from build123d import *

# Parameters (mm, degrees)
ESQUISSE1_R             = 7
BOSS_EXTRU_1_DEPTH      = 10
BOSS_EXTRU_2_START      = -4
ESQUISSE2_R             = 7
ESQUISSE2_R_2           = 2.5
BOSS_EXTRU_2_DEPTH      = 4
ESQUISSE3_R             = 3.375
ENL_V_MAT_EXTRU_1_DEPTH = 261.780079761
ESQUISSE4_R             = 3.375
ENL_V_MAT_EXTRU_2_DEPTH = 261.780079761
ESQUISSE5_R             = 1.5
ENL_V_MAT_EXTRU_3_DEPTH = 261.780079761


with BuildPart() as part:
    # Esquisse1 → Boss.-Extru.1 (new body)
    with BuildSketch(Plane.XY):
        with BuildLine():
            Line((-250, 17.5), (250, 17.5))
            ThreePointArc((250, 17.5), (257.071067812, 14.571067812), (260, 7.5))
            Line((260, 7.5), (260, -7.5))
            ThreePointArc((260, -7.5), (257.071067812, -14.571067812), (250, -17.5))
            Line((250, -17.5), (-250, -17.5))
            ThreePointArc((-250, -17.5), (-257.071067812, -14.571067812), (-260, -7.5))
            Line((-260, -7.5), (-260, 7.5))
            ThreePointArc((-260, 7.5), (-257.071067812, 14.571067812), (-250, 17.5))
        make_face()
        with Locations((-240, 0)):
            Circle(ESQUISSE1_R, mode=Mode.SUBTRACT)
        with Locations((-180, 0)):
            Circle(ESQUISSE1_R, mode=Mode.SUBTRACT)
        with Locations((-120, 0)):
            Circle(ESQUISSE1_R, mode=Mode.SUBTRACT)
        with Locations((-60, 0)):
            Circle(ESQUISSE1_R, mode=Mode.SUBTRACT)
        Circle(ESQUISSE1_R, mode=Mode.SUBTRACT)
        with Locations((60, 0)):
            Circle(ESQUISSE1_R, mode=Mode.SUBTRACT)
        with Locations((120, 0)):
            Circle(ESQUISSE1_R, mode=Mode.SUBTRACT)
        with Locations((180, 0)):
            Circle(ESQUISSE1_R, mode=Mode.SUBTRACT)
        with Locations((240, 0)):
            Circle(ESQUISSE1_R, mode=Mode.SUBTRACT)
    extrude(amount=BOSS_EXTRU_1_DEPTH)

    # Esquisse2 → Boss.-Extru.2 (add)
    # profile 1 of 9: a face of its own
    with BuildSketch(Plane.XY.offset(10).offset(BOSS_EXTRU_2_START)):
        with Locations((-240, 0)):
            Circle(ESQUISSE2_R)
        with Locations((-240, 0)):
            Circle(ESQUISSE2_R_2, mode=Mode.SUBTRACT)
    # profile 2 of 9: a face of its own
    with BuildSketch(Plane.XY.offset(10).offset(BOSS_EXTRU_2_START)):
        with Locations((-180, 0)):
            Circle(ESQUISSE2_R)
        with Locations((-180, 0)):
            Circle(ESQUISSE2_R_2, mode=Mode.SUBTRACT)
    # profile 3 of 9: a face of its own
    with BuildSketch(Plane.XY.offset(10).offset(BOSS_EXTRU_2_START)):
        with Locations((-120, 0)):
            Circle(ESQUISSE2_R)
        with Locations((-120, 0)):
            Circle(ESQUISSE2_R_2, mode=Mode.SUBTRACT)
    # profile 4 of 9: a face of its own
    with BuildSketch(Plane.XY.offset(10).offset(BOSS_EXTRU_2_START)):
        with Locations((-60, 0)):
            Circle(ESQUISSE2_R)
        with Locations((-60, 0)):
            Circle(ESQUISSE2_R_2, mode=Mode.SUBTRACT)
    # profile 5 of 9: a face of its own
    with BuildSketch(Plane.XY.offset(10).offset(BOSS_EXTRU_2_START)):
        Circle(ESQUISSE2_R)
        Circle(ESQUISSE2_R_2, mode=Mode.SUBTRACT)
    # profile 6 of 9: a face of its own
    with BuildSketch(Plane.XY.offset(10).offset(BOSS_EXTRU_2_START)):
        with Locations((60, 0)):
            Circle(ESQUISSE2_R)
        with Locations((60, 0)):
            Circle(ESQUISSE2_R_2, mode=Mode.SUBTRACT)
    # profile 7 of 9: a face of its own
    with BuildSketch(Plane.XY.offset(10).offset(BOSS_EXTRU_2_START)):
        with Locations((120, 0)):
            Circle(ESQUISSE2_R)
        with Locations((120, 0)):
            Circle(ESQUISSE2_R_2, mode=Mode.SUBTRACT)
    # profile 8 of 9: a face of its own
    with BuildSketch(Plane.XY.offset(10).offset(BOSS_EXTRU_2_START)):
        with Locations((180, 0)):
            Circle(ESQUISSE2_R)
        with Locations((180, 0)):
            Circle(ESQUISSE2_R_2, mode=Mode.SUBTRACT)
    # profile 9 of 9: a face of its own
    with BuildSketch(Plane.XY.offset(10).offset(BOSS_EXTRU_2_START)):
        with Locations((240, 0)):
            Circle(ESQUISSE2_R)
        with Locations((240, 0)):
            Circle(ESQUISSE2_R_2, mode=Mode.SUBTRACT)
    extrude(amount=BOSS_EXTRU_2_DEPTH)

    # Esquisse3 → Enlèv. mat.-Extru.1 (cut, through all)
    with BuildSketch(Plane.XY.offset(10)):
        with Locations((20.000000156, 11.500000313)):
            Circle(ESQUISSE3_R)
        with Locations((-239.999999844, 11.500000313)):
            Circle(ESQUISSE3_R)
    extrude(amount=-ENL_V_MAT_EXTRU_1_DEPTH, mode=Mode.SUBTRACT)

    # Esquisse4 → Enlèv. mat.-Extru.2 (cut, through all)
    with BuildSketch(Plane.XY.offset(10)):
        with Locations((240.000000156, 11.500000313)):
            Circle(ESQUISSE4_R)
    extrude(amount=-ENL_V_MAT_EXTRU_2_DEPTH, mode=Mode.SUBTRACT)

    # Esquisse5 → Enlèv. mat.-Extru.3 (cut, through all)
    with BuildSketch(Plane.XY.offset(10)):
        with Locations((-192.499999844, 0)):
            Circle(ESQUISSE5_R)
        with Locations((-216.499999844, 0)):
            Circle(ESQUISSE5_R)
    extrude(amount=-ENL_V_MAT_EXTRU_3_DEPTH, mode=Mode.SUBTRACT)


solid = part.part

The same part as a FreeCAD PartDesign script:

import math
import FreeCAD as App
import Part
import Sketcher

doc = App.newDocument("Part")
body = doc.addObject("PartDesign::Body", "Body")

# Sketch on XY plane
sketch1 = body.newObject("Sketcher::SketchObject", "Sketch")
sketch1.AttachmentSupport = (doc.getObject("XY_Plane"), [""])
sketch1.MapMode = "FlatFace"
sketch1.addGeometry(Part.LineSegment(App.Vector(250, 18, 0), App.Vector(-250, 18, 0)), False)
sketch1.addGeometry(Part.ArcOfCircle(Part.Circle(App.Vector(-250, 8, 0), App.Vector(0, 0, 1), 10), math.radians(90), math.radians(180)), False)
sketch1.addGeometry(Part.LineSegment(App.Vector(-260, 8, 0), App.Vector(-260, -8, 0)), False)
sketch1.addGeometry(Part.ArcOfCircle(Part.Circle(App.Vector(-250, -8, 0), App.Vector(0, 0, 1), 10), math.radians(180), math.radians(270)), False)
sketch1.addGeometry(Part.LineSegment(App.Vector(-250, -18, 0), App.Vector(250, -18, 0)), False)
sketch1.addGeometry(Part.ArcOfCircle(Part.Circle(App.Vector(250, -8, 0), App.Vector(0, 0, 1), 10), math.radians(-90), math.radians(0)), False)
sketch1.addGeometry(Part.LineSegment(App.Vector(260, -8, 0), App.Vector(260, 8, 0)), False)
sketch1.addGeometry(Part.ArcOfCircle(Part.Circle(App.Vector(250, 8, 0), App.Vector(0, 0, 1), 10), math.radians(0), math.radians(90)), False)
sketch1.addGeometry(Part.Circle(App.Vector(240, 0, 0), App.Vector(0, 0, 1), 7), False)
sketch1.addGeometry(Part.Circle(App.Vector(180, 0, 0), App.Vector(0, 0, 1), 7), False)
sketch1.addGeometry(Part.Circle(App.Vector(120, 0, 0), App.Vector(0, 0, 1), 7), False)
sketch1.addGeometry(Part.Circle(App.Vector(60, 0, 0), App.Vector(0, 0, 1), 7), False)
sketch1.addGeometry(Part.Circle(App.Vector(0, 0, 0), App.Vector(0, 0, 1), 7), False)
sketch1.addGeometry(Part.Circle(App.Vector(-60, 0, 0), App.Vector(0, 0, 1), 7), False)
sketch1.addGeometry(Part.Circle(App.Vector(-120, 0, 0), App.Vector(0, 0, 1), 7), False)
sketch1.addGeometry(Part.Circle(App.Vector(-180, 0, 0), App.Vector(0, 0, 1), 7), False)
sketch1.addGeometry(Part.Circle(App.Vector(-240, 0, 0), App.Vector(0, 0, 1), 7), False)
sketch1.addConstraint(Sketcher.Constraint("Tangent", 0, 2, 1, 1))
sketch1.addConstraint(Sketcher.Constraint("Tangent", 1, 2, 2, 1))
sketch1.addConstraint(Sketcher.Constraint("Tangent", 2, 2, 3, 1))
sketch1.addConstraint(Sketcher.Constraint("Tangent", 3, 2, 4, 1))
sketch1.addConstraint(Sketcher.Constraint("Tangent", 4, 2, 5, 1))
sketch1.addConstraint(Sketcher.Constraint("Tangent", 5, 2, 6, 1))
sketch1.addConstraint(Sketcher.Constraint("Tangent", 6, 2, 7, 1))
sketch1.addConstraint(Sketcher.Constraint("Tangent", 7, 2, 0, 1))
sketch1.addConstraint(Sketcher.Constraint("Horizontal", 0))
sketch1.addConstraint(Sketcher.Constraint("Vertical", 2))
sketch1.addConstraint(Sketcher.Constraint("Horizontal", 4))
sketch1.addConstraint(Sketcher.Constraint("Vertical", 6))
sketch1.addConstraint(Sketcher.Constraint("Coincident", 12, 3, -1, 1))
sketch1.addConstraint(Sketcher.Constraint("Equal", 1, 3))
sketch1.addConstraint(Sketcher.Constraint("Equal", 3, 5))
sketch1.addConstraint(Sketcher.Constraint("Equal", 5, 7))
sketch1.addConstraint(Sketcher.Constraint("Equal", 8, 9))
sketch1.addConstraint(Sketcher.Constraint("Equal", 9, 10))
sketch1.addConstraint(Sketcher.Constraint("Equal", 10, 11))
sketch1.addConstraint(Sketcher.Constraint("Equal", 11, 12))
sketch1.addConstraint(Sketcher.Constraint("Equal", 12, 13))
sketch1.addConstraint(Sketcher.Constraint("Equal", 13, 14))
sketch1.addConstraint(Sketcher.Constraint("Equal", 14, 15))
sketch1.addConstraint(Sketcher.Constraint("Equal", 15, 16))
sketch1.addConstraint(Sketcher.Constraint("Symmetric", 1, 3, 5, 3, -1, 1))
sketch1.addConstraint(Sketcher.Constraint("Symmetric", 11, 3, 13, 3, -1, 1))
sketch1.addConstraint(Sketcher.Constraint("Symmetric", 10, 3, 14, 3, -1, 1))
sketch1.addConstraint(Sketcher.Constraint("Symmetric", 9, 3, 15, 3, -1, 1))
sketch1.addConstraint(Sketcher.Constraint("Symmetric", 8, 3, 16, 3, -1, 1))
sketch1.addConstraint(Sketcher.Constraint("PointOnObject", 8, 3, -1))
sketch1.addConstraint(Sketcher.Constraint("PointOnObject", 9, 3, -1))
sketch1.addConstraint(Sketcher.Constraint("PointOnObject", 10, 3, -1))
sketch1.addConstraint(Sketcher.Constraint("PointOnObject", 11, 3, -1))
sketch1.addConstraint(Sketcher.Constraint("Diameter", 8, 14.0))
sketch1.addConstraint(Sketcher.Constraint("Radius", 1, 10.0))
sketch1.addConstraint(Sketcher.Constraint("DistanceX", 0, 2, 0, 1, 500.0))
sketch1.addConstraint(Sketcher.Constraint("DistanceY", 2, 2, 2, 1, 15.0))
sketch1.addConstraint(Sketcher.Constraint("DistanceX", -1, 1, 8, 3, 240.0))
sketch1.addConstraint(Sketcher.Constraint("DistanceX", -1, 1, 9, 3, 180.0))
sketch1.addConstraint(Sketcher.Constraint("DistanceX", -1, 1, 10, 3, 120.0))
sketch1.addConstraint(Sketcher.Constraint("DistanceX", -1, 1, 11, 3, 60.0))
pad1 = body.newObject("PartDesign::Pad", "Pad")
pad1.Profile = sketch1
pad1.Length = 10

# Sketch on XY plane
sketch2 = body.newObject("Sketcher::SketchObject", "Sketch001")
sketch2.AttachmentSupport = (doc.getObject("XY_Plane"), [""])
sketch2.MapMode = "FlatFace"
sketch2.AttachmentOffset = App.Placement(App.Vector(0, 0, 6), App.Rotation())
sketch2.addGeometry(Part.Circle(App.Vector(-240, 0, 0), App.Vector(0, 0, 1), 7), False)
sketch2.addGeometry(Part.Circle(App.Vector(-240, 0, 0), App.Vector(0, 0, 1), 2.5), False)
sketch2.addGeometry(Part.Circle(App.Vector(-180, 0, 0), App.Vector(0, 0, 1), 7), False)
sketch2.addGeometry(Part.Circle(App.Vector(-180, 0, 0), App.Vector(0, 0, 1), 2.5), False)
sketch2.addGeometry(Part.Circle(App.Vector(-120, 0, 0), App.Vector(0, 0, 1), 7), False)
sketch2.addGeometry(Part.Circle(App.Vector(-120, 0, 0), App.Vector(0, 0, 1), 2.5), False)
sketch2.addGeometry(Part.Circle(App.Vector(-60, 0, 0), App.Vector(0, 0, 1), 7), False)
sketch2.addGeometry(Part.Circle(App.Vector(-60, 0, 0), App.Vector(0, 0, 1), 2.5), False)
sketch2.addGeometry(Part.Circle(App.Vector(0, 0, 0), App.Vector(0, 0, 1), 7), False)
sketch2.addGeometry(Part.Circle(App.Vector(0, 0, 0), App.Vector(0, 0, 1), 2.5), False)
sketch2.addGeometry(Part.Circle(App.Vector(60, 0, 0), App.Vector(0, 0, 1), 7), False)
sketch2.addGeometry(Part.Circle(App.Vector(60, 0, 0), App.Vector(0, 0, 1), 2.5), False)
sketch2.addGeometry(Part.Circle(App.Vector(120, 0, 0), App.Vector(0, 0, 1), 7), False)
sketch2.addGeometry(Part.Circle(App.Vector(120, 0, 0), App.Vector(0, 0, 1), 2.5), False)
sketch2.addGeometry(Part.Circle(App.Vector(180, 0, 0), App.Vector(0, 0, 1), 7), False)
sketch2.addGeometry(Part.Circle(App.Vector(180, 0, 0), App.Vector(0, 0, 1), 2.5), False)
sketch2.addGeometry(Part.Circle(App.Vector(240, 0, 0), App.Vector(0, 0, 1), 7), False)
sketch2.addGeometry(Part.Circle(App.Vector(240, 0, 0), App.Vector(0, 0, 1), 2.5), False)
sketch2.addConstraint(Sketcher.Constraint("Coincident", 8, 3, -1, 1))
sketch2.addConstraint(Sketcher.Constraint("Coincident", 9, 3, -1, 1))
sketch2.addConstraint(Sketcher.Constraint("Coincident", 1, 3, 0, 3))
sketch2.addConstraint(Sketcher.Constraint("Coincident", 3, 3, 2, 3))
sketch2.addConstraint(Sketcher.Constraint("Coincident", 5, 3, 4, 3))
sketch2.addConstraint(Sketcher.Constraint("Coincident", 7, 3, 6, 3))
sketch2.addConstraint(Sketcher.Constraint("Coincident", 11, 3, 10, 3))
sketch2.addConstraint(Sketcher.Constraint("Coincident", 13, 3, 12, 3))
sketch2.addConstraint(Sketcher.Constraint("Coincident", 15, 3, 14, 3))
sketch2.addConstraint(Sketcher.Constraint("Coincident", 17, 3, 16, 3))
sketch2.addConstraint(Sketcher.Constraint("Equal", 0, 2))
sketch2.addConstraint(Sketcher.Constraint("Equal", 1, 3))
sketch2.addConstraint(Sketcher.Constraint("Equal", 2, 4))
sketch2.addConstraint(Sketcher.Constraint("Equal", 3, 5))
sketch2.addConstraint(Sketcher.Constraint("Equal", 4, 6))
sketch2.addConstraint(Sketcher.Constraint("Equal", 5, 7))
sketch2.addConstraint(Sketcher.Constraint("Equal", 6, 8))
sketch2.addConstraint(Sketcher.Constraint("Equal", 7, 9))
sketch2.addConstraint(Sketcher.Constraint("Equal", 8, 10))
sketch2.addConstraint(Sketcher.Constraint("Equal", 9, 11))
sketch2.addConstraint(Sketcher.Constraint("Equal", 10, 12))
sketch2.addConstraint(Sketcher.Constraint("Equal", 11, 13))
sketch2.addConstraint(Sketcher.Constraint("Equal", 12, 14))
sketch2.addConstraint(Sketcher.Constraint("Equal", 13, 15))
sketch2.addConstraint(Sketcher.Constraint("Equal", 14, 16))
sketch2.addConstraint(Sketcher.Constraint("Equal", 15, 17))
sketch2.addConstraint(Sketcher.Constraint("Symmetric", 6, 3, 10, 3, -1, 1))
sketch2.addConstraint(Sketcher.Constraint("Symmetric", 4, 3, 12, 3, -1, 1))
sketch2.addConstraint(Sketcher.Constraint("Symmetric", 2, 3, 14, 3, -1, 1))
sketch2.addConstraint(Sketcher.Constraint("Symmetric", 0, 3, 16, 3, -1, 1))
sketch2.addConstraint(Sketcher.Constraint("PointOnObject", 0, 3, -1))
sketch2.addConstraint(Sketcher.Constraint("PointOnObject", 2, 3, -1))
sketch2.addConstraint(Sketcher.Constraint("PointOnObject", 4, 3, -1))
sketch2.addConstraint(Sketcher.Constraint("PointOnObject", 6, 3, -1))
sketch2.addConstraint(Sketcher.Constraint("Diameter", 0, 14.0))
sketch2.addConstraint(Sketcher.Constraint("Diameter", 1, 5.0))
sketch2.addConstraint(Sketcher.Constraint("DistanceX", 0, 3, -1, 1, 240.0))
sketch2.addConstraint(Sketcher.Constraint("DistanceX", 2, 3, -1, 1, 180.0))
sketch2.addConstraint(Sketcher.Constraint("DistanceX", 4, 3, -1, 1, 120.0))
sketch2.addConstraint(Sketcher.Constraint("DistanceX", 6, 3, -1, 1, 60.0))
pad2 = body.newObject("PartDesign::Pad", "Pad001")
pad2.Profile = sketch2
pad2.Length = 4

# Sketch on XY plane
sketch3 = body.newObject("Sketcher::SketchObject", "Sketch002")
sketch3.AttachmentSupport = (doc.getObject("XY_Plane"), [""])
sketch3.MapMode = "FlatFace"
sketch3.AttachmentOffset = App.Placement(App.Vector(0, 0, 10), App.Rotation())
sketch3.addGeometry(Part.Circle(App.Vector(20, 11.5, 0), App.Vector(0, 0, 1), 3.4), False)
sketch3.addGeometry(Part.Circle(App.Vector(-240, 11.5, 0), App.Vector(0, 0, 1), 3.4), False)
sketch3.addConstraint(Sketcher.Constraint("Equal", 0, 1))
sketch3.addConstraint(Sketcher.Constraint("Horizontal", 0, 3, 1, 3))
sketch3.addConstraint(Sketcher.Constraint("Diameter", 0, 6.75))
sketch3.addConstraint(Sketcher.Constraint("DistanceX", -1, 1, 0, 3, 20.0))
sketch3.addConstraint(Sketcher.Constraint("DistanceX", 1, 3, -1, 1, 240.0))
sketch3.addConstraint(Sketcher.Constraint("DistanceY", -1, 1, 0, 3, 11.5))
pocket1 = body.newObject("PartDesign::Pocket", "Pocket")
pocket1.Profile = sketch3
pocket1.Type = "ThroughAll"

# Sketch on XY plane
sketch4 = body.newObject("Sketcher::SketchObject", "Sketch003")
sketch4.AttachmentSupport = (doc.getObject("XY_Plane"), [""])
sketch4.MapMode = "FlatFace"
sketch4.AttachmentOffset = App.Placement(App.Vector(0, 0, 10), App.Rotation())
sketch4.addGeometry(Part.Circle(App.Vector(240, 11.5, 0), App.Vector(0, 0, 1), 3.4), False)
sketch4.addConstraint(Sketcher.Constraint("Diameter", 0, 6.75))
sketch4.addConstraint(Sketcher.Constraint("DistanceX", -1, 1, 0, 3, 240.0))
sketch4.addConstraint(Sketcher.Constraint("DistanceY", -1, 1, 0, 3, 11.5))
pocket2 = body.newObject("PartDesign::Pocket", "Pocket001")
pocket2.Profile = sketch4
pocket2.Type = "ThroughAll"

# Sketch on XY plane
sketch5 = body.newObject("Sketcher::SketchObject", "Sketch004")
sketch5.AttachmentSupport = (doc.getObject("XY_Plane"), [""])
sketch5.MapMode = "FlatFace"
sketch5.AttachmentOffset = App.Placement(App.Vector(0, 0, 10), App.Rotation())
sketch5.addGeometry(Part.Circle(App.Vector(-192.5, 0, 0), App.Vector(0, 0, 1), 1.5), False)
sketch5.addGeometry(Part.Circle(App.Vector(-216.5, 0, 0), App.Vector(0, 0, 1), 1.5), False)
sketch5.addConstraint(Sketcher.Constraint("Equal", 0, 1))
sketch5.addConstraint(Sketcher.Constraint("PointOnObject", 0, 3, -1))
sketch5.addConstraint(Sketcher.Constraint("PointOnObject", 1, 3, -1))
sketch5.addConstraint(Sketcher.Constraint("Diameter", 0, 3.0))
sketch5.addConstraint(Sketcher.Constraint("DistanceX", 1, 3, 0, 3, 24.0))
sketch5.addConstraint(Sketcher.Constraint("DistanceX", 0, 3, -1, 1, 192.5))
pocket3 = body.newObject("PartDesign::Pocket", "Pocket002")
pocket3.Profile = sketch5
pocket3.Type = "ThroughAll"

doc.recompute()
